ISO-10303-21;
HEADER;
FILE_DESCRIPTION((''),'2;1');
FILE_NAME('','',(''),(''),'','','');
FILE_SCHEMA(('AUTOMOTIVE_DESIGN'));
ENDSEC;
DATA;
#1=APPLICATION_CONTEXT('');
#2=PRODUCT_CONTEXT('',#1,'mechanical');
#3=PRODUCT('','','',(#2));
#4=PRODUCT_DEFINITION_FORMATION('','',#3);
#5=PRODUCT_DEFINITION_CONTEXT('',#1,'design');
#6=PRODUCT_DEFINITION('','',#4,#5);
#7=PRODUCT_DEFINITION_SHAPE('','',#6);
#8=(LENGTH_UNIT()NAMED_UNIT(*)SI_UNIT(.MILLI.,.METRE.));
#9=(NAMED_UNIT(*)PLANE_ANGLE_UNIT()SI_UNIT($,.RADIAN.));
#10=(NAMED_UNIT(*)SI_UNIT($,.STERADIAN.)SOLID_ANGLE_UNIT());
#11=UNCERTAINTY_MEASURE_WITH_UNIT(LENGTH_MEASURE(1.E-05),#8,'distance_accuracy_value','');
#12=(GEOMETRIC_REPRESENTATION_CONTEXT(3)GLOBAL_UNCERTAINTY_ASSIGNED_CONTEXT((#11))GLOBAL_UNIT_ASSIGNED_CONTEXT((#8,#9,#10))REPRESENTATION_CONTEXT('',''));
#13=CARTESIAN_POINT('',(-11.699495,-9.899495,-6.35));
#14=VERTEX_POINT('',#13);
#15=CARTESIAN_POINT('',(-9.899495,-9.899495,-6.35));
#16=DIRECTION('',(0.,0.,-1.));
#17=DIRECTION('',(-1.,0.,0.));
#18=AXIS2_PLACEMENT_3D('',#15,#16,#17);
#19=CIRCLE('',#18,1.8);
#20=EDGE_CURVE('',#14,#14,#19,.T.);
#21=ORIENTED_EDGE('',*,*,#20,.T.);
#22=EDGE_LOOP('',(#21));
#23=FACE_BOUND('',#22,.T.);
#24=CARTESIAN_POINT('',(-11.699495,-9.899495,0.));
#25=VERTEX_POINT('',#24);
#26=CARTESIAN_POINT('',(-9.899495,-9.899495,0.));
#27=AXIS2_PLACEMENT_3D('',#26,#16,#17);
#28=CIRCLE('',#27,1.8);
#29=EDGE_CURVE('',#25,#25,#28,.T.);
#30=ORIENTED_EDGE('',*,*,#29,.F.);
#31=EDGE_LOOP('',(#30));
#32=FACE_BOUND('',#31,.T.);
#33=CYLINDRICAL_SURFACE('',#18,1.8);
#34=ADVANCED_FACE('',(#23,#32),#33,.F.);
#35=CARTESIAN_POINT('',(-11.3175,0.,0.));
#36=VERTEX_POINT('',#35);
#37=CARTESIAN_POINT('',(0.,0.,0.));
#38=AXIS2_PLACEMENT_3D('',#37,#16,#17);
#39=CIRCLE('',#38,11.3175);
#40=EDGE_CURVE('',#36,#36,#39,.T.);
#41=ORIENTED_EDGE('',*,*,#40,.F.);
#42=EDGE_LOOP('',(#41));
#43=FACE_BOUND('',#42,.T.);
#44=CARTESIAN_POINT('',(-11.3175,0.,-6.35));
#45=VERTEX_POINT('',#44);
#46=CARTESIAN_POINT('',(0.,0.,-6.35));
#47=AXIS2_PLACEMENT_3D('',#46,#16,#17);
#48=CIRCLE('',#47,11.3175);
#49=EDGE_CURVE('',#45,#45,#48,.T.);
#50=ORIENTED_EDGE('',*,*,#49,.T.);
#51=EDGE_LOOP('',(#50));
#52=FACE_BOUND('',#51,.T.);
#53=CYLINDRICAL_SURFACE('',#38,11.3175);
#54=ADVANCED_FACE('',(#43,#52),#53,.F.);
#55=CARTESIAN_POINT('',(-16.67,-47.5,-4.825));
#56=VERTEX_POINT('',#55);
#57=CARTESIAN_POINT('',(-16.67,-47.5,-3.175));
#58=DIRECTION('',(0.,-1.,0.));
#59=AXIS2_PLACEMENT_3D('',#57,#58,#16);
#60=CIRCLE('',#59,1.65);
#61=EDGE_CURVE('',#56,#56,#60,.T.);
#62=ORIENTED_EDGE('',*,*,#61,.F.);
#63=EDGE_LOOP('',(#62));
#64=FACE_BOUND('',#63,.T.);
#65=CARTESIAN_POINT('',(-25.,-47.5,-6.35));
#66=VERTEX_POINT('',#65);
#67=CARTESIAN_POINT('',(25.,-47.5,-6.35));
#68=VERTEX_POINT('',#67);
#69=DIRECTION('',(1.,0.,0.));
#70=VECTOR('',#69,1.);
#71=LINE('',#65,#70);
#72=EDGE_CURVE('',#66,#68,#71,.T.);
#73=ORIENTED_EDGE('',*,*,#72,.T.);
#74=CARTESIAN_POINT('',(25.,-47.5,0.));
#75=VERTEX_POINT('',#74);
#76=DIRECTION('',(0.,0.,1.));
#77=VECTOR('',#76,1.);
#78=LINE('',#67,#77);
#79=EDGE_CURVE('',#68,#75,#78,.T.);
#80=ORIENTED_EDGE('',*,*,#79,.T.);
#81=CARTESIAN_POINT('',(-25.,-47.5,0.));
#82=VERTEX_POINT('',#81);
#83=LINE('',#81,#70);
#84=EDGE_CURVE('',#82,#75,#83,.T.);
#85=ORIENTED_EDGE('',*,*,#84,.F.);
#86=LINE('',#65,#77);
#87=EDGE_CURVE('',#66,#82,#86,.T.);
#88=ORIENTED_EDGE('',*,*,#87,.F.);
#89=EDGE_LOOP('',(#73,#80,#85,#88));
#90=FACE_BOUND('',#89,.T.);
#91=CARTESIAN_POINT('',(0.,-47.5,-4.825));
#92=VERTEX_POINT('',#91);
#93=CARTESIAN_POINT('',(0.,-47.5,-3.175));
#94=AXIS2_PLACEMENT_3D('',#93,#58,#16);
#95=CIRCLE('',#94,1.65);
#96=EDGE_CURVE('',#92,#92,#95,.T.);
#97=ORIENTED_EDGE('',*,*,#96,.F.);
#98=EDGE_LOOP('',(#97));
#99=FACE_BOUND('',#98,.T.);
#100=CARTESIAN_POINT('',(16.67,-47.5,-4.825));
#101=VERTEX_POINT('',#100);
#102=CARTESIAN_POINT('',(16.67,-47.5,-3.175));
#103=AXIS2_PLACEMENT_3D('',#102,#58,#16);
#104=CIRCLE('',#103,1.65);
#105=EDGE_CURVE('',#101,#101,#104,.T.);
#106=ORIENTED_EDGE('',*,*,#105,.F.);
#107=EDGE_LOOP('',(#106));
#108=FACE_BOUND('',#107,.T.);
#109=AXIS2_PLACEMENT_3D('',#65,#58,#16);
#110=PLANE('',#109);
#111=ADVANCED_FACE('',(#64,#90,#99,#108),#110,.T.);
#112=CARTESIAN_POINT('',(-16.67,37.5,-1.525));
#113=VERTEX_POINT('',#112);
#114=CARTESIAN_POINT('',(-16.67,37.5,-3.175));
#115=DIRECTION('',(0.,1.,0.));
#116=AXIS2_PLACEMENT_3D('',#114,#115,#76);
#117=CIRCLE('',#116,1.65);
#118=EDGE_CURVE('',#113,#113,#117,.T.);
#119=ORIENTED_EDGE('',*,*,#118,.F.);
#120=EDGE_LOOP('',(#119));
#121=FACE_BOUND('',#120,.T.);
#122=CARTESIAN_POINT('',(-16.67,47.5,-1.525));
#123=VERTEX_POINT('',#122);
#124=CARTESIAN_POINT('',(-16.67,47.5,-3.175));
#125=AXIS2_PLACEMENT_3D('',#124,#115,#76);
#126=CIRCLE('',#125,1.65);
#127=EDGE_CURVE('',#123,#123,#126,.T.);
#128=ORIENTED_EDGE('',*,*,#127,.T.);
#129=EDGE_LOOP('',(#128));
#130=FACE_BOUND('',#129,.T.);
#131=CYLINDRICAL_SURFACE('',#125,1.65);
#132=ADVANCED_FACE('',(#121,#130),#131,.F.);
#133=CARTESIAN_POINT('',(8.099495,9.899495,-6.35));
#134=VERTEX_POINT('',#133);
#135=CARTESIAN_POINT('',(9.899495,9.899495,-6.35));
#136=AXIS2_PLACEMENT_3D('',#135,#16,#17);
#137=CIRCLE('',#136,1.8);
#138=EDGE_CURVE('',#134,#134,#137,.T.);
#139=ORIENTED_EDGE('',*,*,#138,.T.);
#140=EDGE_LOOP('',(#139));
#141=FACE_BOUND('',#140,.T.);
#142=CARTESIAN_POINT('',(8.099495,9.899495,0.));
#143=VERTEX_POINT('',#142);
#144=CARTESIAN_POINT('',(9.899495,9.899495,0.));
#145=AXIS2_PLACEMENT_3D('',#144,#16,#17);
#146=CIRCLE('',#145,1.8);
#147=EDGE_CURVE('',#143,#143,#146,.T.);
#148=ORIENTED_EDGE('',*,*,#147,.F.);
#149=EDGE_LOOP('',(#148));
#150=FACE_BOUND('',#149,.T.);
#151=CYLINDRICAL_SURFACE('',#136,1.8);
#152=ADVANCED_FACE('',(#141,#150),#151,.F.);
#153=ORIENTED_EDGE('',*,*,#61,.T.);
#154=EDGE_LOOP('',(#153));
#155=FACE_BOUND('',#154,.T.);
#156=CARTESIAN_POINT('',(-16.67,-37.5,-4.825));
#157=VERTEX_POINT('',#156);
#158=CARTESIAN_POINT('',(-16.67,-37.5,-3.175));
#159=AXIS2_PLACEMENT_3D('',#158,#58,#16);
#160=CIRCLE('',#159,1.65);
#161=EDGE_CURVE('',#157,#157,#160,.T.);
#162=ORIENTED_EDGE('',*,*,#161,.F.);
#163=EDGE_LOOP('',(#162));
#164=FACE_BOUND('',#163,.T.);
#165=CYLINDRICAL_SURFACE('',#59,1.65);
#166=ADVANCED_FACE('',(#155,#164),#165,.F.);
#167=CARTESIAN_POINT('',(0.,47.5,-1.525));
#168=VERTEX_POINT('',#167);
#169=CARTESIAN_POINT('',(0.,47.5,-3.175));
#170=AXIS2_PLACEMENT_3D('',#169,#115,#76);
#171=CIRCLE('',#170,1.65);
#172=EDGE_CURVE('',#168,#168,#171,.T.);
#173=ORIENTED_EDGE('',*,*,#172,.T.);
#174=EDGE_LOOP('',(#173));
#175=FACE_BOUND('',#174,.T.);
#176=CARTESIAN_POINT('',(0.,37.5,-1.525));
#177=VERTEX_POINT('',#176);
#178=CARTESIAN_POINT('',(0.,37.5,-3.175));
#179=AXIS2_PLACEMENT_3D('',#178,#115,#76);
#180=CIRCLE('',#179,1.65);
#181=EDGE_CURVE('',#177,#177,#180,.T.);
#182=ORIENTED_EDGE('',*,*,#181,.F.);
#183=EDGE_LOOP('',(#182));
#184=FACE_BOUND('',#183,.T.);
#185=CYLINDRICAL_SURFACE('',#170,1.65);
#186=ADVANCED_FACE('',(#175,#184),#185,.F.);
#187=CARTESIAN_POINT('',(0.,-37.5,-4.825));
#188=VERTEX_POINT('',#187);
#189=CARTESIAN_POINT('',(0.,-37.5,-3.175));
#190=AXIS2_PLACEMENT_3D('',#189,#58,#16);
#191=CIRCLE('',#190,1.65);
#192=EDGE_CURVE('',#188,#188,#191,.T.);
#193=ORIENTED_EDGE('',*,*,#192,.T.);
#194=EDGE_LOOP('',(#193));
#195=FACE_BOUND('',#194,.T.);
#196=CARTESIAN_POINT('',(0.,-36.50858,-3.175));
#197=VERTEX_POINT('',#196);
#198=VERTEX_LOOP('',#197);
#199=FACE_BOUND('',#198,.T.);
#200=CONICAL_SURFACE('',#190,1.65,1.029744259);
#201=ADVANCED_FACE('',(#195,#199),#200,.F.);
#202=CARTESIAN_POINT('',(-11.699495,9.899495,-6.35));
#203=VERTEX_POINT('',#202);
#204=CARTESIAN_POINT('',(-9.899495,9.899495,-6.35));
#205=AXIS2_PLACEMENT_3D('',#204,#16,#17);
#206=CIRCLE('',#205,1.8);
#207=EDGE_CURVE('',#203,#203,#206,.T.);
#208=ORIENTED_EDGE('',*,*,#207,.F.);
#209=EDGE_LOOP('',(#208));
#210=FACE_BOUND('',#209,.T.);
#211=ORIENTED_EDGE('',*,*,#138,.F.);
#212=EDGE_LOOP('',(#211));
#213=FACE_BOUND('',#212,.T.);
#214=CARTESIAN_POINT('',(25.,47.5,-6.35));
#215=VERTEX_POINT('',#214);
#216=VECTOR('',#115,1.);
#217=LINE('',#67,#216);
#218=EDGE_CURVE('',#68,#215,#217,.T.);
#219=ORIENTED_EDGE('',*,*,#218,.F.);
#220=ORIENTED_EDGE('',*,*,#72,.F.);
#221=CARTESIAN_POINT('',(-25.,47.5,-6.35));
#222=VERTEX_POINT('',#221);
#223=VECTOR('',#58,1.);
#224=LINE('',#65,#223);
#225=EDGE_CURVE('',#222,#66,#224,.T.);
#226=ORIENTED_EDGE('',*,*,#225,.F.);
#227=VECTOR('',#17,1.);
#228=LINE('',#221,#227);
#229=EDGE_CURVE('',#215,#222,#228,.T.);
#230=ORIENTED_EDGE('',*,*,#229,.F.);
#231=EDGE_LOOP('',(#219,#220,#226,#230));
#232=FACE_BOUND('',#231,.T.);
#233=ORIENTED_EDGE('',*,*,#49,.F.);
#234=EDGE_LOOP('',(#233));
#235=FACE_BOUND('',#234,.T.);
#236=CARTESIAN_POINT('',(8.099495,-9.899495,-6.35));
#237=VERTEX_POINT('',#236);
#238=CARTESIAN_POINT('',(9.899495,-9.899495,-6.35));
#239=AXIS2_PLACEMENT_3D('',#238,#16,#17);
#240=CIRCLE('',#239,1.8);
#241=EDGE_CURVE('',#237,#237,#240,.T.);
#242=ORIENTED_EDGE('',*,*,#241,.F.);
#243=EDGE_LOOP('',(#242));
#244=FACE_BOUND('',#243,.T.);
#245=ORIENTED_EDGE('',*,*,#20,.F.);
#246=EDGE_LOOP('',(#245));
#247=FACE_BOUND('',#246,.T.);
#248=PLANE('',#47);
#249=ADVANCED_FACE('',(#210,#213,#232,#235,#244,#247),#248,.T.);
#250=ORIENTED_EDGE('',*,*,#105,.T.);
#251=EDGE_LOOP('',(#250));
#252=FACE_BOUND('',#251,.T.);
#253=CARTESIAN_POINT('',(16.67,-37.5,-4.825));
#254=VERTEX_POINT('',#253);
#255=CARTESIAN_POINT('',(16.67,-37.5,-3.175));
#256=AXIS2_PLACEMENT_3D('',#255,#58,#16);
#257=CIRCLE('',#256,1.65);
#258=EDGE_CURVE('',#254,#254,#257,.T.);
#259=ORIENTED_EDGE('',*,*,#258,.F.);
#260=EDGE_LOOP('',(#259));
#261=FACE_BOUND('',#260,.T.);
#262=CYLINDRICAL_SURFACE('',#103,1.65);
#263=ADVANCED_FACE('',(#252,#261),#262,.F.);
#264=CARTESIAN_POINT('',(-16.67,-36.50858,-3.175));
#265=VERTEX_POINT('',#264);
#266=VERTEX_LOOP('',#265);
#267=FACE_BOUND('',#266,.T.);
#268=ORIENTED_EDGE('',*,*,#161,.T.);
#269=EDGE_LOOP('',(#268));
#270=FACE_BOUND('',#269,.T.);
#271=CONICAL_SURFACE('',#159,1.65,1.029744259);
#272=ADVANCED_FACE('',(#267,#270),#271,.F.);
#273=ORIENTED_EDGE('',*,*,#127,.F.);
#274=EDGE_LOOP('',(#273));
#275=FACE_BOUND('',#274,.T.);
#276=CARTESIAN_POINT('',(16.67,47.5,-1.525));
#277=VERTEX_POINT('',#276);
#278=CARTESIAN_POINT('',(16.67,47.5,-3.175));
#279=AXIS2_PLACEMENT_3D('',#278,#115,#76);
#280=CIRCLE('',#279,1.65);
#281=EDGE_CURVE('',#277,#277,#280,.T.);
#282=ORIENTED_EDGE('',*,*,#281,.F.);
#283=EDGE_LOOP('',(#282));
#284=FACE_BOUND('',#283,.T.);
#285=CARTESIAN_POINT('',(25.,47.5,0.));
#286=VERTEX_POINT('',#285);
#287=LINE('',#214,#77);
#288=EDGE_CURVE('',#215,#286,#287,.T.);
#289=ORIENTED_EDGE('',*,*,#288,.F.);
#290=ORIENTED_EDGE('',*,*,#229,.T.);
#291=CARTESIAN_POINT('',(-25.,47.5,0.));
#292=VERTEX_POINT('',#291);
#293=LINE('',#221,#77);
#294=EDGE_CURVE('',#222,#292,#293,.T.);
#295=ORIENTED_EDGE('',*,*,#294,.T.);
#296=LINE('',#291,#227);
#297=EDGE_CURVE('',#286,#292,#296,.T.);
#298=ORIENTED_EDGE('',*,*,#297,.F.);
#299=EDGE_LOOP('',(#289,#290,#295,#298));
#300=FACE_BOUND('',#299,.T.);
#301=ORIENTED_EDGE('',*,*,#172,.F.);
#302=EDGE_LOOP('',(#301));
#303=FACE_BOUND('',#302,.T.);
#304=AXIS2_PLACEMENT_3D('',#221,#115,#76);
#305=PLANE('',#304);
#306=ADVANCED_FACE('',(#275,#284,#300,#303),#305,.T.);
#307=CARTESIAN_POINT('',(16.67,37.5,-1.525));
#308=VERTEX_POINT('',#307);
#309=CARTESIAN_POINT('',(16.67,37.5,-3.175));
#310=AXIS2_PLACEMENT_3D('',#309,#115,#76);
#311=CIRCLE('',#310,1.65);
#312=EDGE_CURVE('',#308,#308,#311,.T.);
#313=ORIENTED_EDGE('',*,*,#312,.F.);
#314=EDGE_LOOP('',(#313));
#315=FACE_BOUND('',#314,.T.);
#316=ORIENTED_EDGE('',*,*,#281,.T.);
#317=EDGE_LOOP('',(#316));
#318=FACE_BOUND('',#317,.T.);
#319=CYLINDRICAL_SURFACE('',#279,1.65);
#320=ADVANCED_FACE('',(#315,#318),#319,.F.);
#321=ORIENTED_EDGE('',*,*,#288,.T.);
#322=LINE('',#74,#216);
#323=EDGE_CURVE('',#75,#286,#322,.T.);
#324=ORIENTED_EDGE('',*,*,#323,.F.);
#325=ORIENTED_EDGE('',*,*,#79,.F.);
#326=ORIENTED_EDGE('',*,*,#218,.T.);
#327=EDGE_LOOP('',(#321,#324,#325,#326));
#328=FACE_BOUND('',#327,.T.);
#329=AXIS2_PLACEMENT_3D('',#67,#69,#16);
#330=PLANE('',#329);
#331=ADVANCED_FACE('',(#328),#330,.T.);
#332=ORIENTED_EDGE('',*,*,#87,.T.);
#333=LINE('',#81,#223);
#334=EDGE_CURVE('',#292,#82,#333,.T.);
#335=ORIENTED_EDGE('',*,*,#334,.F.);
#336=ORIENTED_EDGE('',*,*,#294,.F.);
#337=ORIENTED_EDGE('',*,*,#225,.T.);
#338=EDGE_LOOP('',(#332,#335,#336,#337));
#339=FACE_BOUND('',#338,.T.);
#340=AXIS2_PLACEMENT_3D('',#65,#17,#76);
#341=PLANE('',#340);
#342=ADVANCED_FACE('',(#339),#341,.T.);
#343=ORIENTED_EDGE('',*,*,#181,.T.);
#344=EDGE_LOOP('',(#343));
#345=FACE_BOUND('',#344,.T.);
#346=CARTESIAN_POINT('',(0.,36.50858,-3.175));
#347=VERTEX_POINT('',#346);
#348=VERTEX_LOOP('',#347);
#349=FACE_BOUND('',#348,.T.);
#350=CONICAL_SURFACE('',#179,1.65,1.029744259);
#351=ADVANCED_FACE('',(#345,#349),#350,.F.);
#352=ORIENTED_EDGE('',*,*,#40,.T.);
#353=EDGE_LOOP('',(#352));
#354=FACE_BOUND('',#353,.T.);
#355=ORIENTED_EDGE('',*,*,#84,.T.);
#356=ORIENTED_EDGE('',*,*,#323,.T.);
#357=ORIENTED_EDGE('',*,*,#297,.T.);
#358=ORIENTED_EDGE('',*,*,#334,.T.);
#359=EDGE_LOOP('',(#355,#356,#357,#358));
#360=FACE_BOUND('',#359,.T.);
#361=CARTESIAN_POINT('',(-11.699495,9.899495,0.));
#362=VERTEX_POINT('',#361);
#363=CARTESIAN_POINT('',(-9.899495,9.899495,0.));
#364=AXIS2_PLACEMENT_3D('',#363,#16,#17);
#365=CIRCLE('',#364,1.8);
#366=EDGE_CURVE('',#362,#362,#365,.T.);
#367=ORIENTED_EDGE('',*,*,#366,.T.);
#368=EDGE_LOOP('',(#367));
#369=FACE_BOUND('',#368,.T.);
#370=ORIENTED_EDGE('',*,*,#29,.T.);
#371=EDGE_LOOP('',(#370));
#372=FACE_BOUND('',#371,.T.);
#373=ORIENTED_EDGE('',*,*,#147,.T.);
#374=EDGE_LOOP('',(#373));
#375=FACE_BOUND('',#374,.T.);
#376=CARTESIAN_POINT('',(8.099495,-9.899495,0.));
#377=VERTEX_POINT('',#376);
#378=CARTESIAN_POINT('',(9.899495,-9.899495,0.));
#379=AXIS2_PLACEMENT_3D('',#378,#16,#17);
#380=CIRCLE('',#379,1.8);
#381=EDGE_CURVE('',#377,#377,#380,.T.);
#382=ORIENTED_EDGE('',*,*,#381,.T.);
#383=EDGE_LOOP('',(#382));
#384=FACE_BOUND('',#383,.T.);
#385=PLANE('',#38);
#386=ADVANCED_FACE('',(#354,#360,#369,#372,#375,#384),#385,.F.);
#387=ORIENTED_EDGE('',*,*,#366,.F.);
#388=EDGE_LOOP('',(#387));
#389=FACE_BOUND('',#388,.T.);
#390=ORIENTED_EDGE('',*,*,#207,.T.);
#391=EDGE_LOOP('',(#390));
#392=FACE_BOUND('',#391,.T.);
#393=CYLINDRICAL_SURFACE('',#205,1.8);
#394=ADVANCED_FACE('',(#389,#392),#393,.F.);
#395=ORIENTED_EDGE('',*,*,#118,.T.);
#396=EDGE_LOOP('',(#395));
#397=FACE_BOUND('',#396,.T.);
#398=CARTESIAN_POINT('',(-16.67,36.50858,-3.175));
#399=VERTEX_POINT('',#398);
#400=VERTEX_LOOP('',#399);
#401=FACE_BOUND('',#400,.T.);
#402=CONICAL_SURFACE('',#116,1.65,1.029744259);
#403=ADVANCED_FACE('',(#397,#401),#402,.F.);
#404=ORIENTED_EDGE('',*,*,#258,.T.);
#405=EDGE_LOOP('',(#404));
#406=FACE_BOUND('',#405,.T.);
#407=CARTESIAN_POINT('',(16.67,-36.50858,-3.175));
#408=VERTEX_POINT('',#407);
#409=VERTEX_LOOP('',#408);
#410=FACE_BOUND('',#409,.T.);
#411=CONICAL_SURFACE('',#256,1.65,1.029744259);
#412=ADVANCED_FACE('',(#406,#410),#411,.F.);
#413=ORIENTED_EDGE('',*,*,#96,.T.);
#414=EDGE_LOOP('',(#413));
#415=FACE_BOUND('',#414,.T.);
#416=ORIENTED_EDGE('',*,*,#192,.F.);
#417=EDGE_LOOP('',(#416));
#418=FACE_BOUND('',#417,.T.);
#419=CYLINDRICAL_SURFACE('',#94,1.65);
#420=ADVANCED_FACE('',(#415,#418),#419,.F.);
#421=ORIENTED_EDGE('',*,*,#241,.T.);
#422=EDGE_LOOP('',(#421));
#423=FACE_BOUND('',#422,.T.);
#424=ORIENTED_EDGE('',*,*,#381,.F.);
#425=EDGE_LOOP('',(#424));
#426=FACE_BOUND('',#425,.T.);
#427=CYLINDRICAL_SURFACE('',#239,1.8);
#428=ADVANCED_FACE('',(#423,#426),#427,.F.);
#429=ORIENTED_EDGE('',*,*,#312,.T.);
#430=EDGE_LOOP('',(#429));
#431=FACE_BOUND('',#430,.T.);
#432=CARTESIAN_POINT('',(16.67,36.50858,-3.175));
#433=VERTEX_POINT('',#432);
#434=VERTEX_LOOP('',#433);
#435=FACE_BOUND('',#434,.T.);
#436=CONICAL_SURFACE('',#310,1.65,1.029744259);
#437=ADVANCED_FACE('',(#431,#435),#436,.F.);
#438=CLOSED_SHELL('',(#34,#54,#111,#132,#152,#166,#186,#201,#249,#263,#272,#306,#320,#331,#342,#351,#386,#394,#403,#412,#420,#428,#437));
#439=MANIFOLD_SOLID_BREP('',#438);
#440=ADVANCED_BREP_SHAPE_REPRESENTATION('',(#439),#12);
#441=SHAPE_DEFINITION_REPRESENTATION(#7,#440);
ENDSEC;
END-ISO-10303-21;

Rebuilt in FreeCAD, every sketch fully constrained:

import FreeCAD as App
import Part
import Sketcher

V = App.Vector


def add_polygon(sketch, points):
    """Adds a closed chain of lines whose ends are joined by coincident constraints."""
    first, n = sketch.GeometryCount, len(points)
    for a, b in zip(points, points[1:] + points[:1]):
        sketch.addGeometry(Part.LineSegment(App.Vector(*a, 0), App.Vector(*b, 0)), False)
    for i in range(n):
        sketch.addConstraint(Sketcher.Constraint("Coincident", first + i, 2, first + (i + 1) % n, 1))

doc = App.newDocument("Part")
body = doc.addObject("PartDesign::Body", "Body")

sketch1 = body.newObject("Sketcher::SketchObject", "Sketch")
sketch1.AttachmentSupport = (doc.getObject("XY_Plane"), [""])
sketch1.MapMode = "FlatFace"
add_polygon(sketch1, [(-25, 47.5), (-25, -47.5), (25, -47.5), (25, 47.5)])
sketch1.addConstraint([
    Sketcher.Constraint("Vertical", 0),
    Sketcher.Constraint("Horizontal", 1),
    Sketcher.Constraint("Vertical", 2),
    Sketcher.Constraint("Horizontal", 3),
    Sketcher.Constraint("Symmetric", 0, 2, 2, 2, -1, 1),
    Sketcher.Constraint("DistanceX", 1, 1, 1, 2, 50.0),
    Sketcher.Constraint("DistanceY", 0, 2, 0, 1, 95.0),
])
pad1 = body.newObject("PartDesign::Pad", "Pad")
pad1.Profile = sketch1
pad1.Length = 6.35
pad1.Reversed = True

sketch2 = body.newObject("Sketcher::SketchObject", "Sketch001")
sketch2.AttachmentSupport = (doc.getObject("XZ_Plane"), [""])
sketch2.MapMode = "FlatFace"
sketch2.AttachmentOffset = App.Placement(V(0, 0, 47.5), App.Rotation())
sketch2.addGeometry([
    Part.Circle(V(-16.67, -3.175, 0), V(0, 0, 1), 1.65),
    Part.Circle(V(16.67, -3.175, 0), V(0, 0, 1), 1.65),
    Part.Circle(V(0, -3.175, 0), V(0, 0, 1), 1.65),
], False)
sketch2.addConstraint([
    Sketcher.Constraint("Equal", 0, 1),
    Sketcher.Constraint("Equal", 1, 2),
    Sketcher.Constraint("Symmetric", 0, 3, 1, 3, -2),
    Sketcher.Constraint("PointOnObject", 2, 3, -2),
    Sketcher.Constraint("Horizontal", 1, 3, 2, 3),
    Sketcher.Constraint("Diameter", 0, 3.3),
    Sketcher.Constraint("DistanceX", 0, 3, -1, 1, 16.67),
    Sketcher.Constraint("DistanceY", 0, 3, -1, 1, 3.175),
])
doc.recompute()
hole = body.newObject("PartDesign::Hole", "Hole")
hole.Profile = sketch2
hole.ThreadType = "None"
hole.Diameter = 3.3
hole.DepthType = "Dimension"
hole.Depth = 10
hole.DrillPoint = "Angled"
hole.DrillPointAngle = 118

sketch3 = body.newObject("Sketcher::SketchObject", "Sketch002")
sketch3.AttachmentSupport = (doc.getObject("XZ_Plane"), [""])
sketch3.MapMode = "FlatFace"
sketch3.AttachmentOffset = App.Placement(V(0, 0, -47.5), App.Rotation())
sketch3.addGeometry([
    Part.Circle(V(-16.67, -3.175, 0), V(0, 0, 1), 1.65),
    Part.Circle(V(0, -3.175, 0), V(0, 0, 1), 1.65),
    Part.Circle(V(16.67, -3.175, 0), V(0, 0, 1), 1.65),
], False)
sketch3.addConstraint([
    Sketcher.Constraint("Equal", 0, 1),
    Sketcher.Constraint("Equal", 1, 2),
    Sketcher.Constraint("Symmetric", 0, 3, 2, 3, -2),
    Sketcher.Constraint("PointOnObject", 1, 3, -2),
    Sketcher.Constraint("Horizontal", 0, 3, 1, 3),
    Sketcher.Constraint("Diameter", 0, 3.3),
    Sketcher.Constraint("DistanceX", 0, 3, -1, 1, 16.67),
    Sketcher.Constraint("DistanceY", 0, 3, -1, 1, 3.175),
])
doc.recompute()
hole2 = body.newObject("PartDesign::Hole", "Hole001")
hole2.Profile = sketch3
hole2.ThreadType = "None"
hole2.Diameter = 3.3
hole2.DepthType = "Dimension"
hole2.Depth = 10
hole2.DrillPoint = "Angled"
hole2.DrillPointAngle = 118
hole2.Reversed = True

sketch4 = body.newObject("Sketcher::SketchObject", "Sketch003")
sketch4.AttachmentSupport = (doc.getObject("XY_Plane"), [""])
sketch4.MapMode = "FlatFace"
sketch4.AttachmentOffset = App.Placement(V(0, 0, -6.35), App.Rotation())
sketch4.addGeometry(Part.Circle(V(0, 0, 0), V(0, 0, 1), 11.3175), False)
sketch4.addConstraint([
    Sketcher.Constraint("Coincident", 0, 3, -1, 1),
    Sketcher.Constraint("Diameter", 0, 22.635),
])
pocket1 = body.newObject("PartDesign::Pocket", "Pocket")
pocket1.Profile = sketch4
pocket1.Type = "ThroughAll"
pocket1.Reversed = True

sketch5 = body.newObject("Sketcher::SketchObject", "Sketch004")
sketch5.AttachmentSupport = (doc.getObject("XY_Plane"), [""])
sketch5.MapMode = "FlatFace"
sketch5.AttachmentOffset = App.Placement(V(0, 0, -6.35), App.Rotation())
sketch5.addGeometry([
    Part.Circle(V(9.899495, 9.899495, 0), V(0, 0, 1), 1.8),
    Part.Circle(V(-9.899495, 9.899495, 0), V(0, 0, 1), 1.8),
    Part.Circle(V(-9.899495, -9.899495, 0), V(0, 0, 1), 1.8),
    Part.Circle(V(9.899495, -9.899495, 0), V(0, 0, 1), 1.8),
    Part.Circle(V(0, 0, 0), V(0, 0, 1), 1.8),
], False)
sketch5.addConstraint([
    Sketcher.Constraint("Coincident", 4, 3, -1, 1),
    Sketcher.Constraint("Equal", 0, 1),
    Sketcher.Constraint("Equal", 1, 2),
    Sketcher.Constraint("Equal", 2, 3),
    Sketcher.Constraint("Equal", 3, 4),
    Sketcher.Constraint("Symmetric", 0, 3, 2, 3, -1, 1),
    Sketcher.Constraint("Symmetric", 1, 3, 3, 3, -1, 1),
    Sketcher.Constraint("Symmetric", 0, 3, 1, 3, -2),
    Sketcher.Constraint("Diameter", 0, 3.6),
    Sketcher.Constraint("DistanceX", 1, 3, 0, 3, 19.79899),
    Sketcher.Constraint("DistanceY", 2, 3, 1, 3, 19.79899),
])
doc.recompute()
hole3 = body.newObject("PartDesign::Hole", "Hole002")
hole3.Profile = sketch5
hole3.ThreadType = "None"
hole3.Diameter = 3.6
hole3.DepthType = "ThroughAll"
hole3.Reversed = True

doc.recompute()
